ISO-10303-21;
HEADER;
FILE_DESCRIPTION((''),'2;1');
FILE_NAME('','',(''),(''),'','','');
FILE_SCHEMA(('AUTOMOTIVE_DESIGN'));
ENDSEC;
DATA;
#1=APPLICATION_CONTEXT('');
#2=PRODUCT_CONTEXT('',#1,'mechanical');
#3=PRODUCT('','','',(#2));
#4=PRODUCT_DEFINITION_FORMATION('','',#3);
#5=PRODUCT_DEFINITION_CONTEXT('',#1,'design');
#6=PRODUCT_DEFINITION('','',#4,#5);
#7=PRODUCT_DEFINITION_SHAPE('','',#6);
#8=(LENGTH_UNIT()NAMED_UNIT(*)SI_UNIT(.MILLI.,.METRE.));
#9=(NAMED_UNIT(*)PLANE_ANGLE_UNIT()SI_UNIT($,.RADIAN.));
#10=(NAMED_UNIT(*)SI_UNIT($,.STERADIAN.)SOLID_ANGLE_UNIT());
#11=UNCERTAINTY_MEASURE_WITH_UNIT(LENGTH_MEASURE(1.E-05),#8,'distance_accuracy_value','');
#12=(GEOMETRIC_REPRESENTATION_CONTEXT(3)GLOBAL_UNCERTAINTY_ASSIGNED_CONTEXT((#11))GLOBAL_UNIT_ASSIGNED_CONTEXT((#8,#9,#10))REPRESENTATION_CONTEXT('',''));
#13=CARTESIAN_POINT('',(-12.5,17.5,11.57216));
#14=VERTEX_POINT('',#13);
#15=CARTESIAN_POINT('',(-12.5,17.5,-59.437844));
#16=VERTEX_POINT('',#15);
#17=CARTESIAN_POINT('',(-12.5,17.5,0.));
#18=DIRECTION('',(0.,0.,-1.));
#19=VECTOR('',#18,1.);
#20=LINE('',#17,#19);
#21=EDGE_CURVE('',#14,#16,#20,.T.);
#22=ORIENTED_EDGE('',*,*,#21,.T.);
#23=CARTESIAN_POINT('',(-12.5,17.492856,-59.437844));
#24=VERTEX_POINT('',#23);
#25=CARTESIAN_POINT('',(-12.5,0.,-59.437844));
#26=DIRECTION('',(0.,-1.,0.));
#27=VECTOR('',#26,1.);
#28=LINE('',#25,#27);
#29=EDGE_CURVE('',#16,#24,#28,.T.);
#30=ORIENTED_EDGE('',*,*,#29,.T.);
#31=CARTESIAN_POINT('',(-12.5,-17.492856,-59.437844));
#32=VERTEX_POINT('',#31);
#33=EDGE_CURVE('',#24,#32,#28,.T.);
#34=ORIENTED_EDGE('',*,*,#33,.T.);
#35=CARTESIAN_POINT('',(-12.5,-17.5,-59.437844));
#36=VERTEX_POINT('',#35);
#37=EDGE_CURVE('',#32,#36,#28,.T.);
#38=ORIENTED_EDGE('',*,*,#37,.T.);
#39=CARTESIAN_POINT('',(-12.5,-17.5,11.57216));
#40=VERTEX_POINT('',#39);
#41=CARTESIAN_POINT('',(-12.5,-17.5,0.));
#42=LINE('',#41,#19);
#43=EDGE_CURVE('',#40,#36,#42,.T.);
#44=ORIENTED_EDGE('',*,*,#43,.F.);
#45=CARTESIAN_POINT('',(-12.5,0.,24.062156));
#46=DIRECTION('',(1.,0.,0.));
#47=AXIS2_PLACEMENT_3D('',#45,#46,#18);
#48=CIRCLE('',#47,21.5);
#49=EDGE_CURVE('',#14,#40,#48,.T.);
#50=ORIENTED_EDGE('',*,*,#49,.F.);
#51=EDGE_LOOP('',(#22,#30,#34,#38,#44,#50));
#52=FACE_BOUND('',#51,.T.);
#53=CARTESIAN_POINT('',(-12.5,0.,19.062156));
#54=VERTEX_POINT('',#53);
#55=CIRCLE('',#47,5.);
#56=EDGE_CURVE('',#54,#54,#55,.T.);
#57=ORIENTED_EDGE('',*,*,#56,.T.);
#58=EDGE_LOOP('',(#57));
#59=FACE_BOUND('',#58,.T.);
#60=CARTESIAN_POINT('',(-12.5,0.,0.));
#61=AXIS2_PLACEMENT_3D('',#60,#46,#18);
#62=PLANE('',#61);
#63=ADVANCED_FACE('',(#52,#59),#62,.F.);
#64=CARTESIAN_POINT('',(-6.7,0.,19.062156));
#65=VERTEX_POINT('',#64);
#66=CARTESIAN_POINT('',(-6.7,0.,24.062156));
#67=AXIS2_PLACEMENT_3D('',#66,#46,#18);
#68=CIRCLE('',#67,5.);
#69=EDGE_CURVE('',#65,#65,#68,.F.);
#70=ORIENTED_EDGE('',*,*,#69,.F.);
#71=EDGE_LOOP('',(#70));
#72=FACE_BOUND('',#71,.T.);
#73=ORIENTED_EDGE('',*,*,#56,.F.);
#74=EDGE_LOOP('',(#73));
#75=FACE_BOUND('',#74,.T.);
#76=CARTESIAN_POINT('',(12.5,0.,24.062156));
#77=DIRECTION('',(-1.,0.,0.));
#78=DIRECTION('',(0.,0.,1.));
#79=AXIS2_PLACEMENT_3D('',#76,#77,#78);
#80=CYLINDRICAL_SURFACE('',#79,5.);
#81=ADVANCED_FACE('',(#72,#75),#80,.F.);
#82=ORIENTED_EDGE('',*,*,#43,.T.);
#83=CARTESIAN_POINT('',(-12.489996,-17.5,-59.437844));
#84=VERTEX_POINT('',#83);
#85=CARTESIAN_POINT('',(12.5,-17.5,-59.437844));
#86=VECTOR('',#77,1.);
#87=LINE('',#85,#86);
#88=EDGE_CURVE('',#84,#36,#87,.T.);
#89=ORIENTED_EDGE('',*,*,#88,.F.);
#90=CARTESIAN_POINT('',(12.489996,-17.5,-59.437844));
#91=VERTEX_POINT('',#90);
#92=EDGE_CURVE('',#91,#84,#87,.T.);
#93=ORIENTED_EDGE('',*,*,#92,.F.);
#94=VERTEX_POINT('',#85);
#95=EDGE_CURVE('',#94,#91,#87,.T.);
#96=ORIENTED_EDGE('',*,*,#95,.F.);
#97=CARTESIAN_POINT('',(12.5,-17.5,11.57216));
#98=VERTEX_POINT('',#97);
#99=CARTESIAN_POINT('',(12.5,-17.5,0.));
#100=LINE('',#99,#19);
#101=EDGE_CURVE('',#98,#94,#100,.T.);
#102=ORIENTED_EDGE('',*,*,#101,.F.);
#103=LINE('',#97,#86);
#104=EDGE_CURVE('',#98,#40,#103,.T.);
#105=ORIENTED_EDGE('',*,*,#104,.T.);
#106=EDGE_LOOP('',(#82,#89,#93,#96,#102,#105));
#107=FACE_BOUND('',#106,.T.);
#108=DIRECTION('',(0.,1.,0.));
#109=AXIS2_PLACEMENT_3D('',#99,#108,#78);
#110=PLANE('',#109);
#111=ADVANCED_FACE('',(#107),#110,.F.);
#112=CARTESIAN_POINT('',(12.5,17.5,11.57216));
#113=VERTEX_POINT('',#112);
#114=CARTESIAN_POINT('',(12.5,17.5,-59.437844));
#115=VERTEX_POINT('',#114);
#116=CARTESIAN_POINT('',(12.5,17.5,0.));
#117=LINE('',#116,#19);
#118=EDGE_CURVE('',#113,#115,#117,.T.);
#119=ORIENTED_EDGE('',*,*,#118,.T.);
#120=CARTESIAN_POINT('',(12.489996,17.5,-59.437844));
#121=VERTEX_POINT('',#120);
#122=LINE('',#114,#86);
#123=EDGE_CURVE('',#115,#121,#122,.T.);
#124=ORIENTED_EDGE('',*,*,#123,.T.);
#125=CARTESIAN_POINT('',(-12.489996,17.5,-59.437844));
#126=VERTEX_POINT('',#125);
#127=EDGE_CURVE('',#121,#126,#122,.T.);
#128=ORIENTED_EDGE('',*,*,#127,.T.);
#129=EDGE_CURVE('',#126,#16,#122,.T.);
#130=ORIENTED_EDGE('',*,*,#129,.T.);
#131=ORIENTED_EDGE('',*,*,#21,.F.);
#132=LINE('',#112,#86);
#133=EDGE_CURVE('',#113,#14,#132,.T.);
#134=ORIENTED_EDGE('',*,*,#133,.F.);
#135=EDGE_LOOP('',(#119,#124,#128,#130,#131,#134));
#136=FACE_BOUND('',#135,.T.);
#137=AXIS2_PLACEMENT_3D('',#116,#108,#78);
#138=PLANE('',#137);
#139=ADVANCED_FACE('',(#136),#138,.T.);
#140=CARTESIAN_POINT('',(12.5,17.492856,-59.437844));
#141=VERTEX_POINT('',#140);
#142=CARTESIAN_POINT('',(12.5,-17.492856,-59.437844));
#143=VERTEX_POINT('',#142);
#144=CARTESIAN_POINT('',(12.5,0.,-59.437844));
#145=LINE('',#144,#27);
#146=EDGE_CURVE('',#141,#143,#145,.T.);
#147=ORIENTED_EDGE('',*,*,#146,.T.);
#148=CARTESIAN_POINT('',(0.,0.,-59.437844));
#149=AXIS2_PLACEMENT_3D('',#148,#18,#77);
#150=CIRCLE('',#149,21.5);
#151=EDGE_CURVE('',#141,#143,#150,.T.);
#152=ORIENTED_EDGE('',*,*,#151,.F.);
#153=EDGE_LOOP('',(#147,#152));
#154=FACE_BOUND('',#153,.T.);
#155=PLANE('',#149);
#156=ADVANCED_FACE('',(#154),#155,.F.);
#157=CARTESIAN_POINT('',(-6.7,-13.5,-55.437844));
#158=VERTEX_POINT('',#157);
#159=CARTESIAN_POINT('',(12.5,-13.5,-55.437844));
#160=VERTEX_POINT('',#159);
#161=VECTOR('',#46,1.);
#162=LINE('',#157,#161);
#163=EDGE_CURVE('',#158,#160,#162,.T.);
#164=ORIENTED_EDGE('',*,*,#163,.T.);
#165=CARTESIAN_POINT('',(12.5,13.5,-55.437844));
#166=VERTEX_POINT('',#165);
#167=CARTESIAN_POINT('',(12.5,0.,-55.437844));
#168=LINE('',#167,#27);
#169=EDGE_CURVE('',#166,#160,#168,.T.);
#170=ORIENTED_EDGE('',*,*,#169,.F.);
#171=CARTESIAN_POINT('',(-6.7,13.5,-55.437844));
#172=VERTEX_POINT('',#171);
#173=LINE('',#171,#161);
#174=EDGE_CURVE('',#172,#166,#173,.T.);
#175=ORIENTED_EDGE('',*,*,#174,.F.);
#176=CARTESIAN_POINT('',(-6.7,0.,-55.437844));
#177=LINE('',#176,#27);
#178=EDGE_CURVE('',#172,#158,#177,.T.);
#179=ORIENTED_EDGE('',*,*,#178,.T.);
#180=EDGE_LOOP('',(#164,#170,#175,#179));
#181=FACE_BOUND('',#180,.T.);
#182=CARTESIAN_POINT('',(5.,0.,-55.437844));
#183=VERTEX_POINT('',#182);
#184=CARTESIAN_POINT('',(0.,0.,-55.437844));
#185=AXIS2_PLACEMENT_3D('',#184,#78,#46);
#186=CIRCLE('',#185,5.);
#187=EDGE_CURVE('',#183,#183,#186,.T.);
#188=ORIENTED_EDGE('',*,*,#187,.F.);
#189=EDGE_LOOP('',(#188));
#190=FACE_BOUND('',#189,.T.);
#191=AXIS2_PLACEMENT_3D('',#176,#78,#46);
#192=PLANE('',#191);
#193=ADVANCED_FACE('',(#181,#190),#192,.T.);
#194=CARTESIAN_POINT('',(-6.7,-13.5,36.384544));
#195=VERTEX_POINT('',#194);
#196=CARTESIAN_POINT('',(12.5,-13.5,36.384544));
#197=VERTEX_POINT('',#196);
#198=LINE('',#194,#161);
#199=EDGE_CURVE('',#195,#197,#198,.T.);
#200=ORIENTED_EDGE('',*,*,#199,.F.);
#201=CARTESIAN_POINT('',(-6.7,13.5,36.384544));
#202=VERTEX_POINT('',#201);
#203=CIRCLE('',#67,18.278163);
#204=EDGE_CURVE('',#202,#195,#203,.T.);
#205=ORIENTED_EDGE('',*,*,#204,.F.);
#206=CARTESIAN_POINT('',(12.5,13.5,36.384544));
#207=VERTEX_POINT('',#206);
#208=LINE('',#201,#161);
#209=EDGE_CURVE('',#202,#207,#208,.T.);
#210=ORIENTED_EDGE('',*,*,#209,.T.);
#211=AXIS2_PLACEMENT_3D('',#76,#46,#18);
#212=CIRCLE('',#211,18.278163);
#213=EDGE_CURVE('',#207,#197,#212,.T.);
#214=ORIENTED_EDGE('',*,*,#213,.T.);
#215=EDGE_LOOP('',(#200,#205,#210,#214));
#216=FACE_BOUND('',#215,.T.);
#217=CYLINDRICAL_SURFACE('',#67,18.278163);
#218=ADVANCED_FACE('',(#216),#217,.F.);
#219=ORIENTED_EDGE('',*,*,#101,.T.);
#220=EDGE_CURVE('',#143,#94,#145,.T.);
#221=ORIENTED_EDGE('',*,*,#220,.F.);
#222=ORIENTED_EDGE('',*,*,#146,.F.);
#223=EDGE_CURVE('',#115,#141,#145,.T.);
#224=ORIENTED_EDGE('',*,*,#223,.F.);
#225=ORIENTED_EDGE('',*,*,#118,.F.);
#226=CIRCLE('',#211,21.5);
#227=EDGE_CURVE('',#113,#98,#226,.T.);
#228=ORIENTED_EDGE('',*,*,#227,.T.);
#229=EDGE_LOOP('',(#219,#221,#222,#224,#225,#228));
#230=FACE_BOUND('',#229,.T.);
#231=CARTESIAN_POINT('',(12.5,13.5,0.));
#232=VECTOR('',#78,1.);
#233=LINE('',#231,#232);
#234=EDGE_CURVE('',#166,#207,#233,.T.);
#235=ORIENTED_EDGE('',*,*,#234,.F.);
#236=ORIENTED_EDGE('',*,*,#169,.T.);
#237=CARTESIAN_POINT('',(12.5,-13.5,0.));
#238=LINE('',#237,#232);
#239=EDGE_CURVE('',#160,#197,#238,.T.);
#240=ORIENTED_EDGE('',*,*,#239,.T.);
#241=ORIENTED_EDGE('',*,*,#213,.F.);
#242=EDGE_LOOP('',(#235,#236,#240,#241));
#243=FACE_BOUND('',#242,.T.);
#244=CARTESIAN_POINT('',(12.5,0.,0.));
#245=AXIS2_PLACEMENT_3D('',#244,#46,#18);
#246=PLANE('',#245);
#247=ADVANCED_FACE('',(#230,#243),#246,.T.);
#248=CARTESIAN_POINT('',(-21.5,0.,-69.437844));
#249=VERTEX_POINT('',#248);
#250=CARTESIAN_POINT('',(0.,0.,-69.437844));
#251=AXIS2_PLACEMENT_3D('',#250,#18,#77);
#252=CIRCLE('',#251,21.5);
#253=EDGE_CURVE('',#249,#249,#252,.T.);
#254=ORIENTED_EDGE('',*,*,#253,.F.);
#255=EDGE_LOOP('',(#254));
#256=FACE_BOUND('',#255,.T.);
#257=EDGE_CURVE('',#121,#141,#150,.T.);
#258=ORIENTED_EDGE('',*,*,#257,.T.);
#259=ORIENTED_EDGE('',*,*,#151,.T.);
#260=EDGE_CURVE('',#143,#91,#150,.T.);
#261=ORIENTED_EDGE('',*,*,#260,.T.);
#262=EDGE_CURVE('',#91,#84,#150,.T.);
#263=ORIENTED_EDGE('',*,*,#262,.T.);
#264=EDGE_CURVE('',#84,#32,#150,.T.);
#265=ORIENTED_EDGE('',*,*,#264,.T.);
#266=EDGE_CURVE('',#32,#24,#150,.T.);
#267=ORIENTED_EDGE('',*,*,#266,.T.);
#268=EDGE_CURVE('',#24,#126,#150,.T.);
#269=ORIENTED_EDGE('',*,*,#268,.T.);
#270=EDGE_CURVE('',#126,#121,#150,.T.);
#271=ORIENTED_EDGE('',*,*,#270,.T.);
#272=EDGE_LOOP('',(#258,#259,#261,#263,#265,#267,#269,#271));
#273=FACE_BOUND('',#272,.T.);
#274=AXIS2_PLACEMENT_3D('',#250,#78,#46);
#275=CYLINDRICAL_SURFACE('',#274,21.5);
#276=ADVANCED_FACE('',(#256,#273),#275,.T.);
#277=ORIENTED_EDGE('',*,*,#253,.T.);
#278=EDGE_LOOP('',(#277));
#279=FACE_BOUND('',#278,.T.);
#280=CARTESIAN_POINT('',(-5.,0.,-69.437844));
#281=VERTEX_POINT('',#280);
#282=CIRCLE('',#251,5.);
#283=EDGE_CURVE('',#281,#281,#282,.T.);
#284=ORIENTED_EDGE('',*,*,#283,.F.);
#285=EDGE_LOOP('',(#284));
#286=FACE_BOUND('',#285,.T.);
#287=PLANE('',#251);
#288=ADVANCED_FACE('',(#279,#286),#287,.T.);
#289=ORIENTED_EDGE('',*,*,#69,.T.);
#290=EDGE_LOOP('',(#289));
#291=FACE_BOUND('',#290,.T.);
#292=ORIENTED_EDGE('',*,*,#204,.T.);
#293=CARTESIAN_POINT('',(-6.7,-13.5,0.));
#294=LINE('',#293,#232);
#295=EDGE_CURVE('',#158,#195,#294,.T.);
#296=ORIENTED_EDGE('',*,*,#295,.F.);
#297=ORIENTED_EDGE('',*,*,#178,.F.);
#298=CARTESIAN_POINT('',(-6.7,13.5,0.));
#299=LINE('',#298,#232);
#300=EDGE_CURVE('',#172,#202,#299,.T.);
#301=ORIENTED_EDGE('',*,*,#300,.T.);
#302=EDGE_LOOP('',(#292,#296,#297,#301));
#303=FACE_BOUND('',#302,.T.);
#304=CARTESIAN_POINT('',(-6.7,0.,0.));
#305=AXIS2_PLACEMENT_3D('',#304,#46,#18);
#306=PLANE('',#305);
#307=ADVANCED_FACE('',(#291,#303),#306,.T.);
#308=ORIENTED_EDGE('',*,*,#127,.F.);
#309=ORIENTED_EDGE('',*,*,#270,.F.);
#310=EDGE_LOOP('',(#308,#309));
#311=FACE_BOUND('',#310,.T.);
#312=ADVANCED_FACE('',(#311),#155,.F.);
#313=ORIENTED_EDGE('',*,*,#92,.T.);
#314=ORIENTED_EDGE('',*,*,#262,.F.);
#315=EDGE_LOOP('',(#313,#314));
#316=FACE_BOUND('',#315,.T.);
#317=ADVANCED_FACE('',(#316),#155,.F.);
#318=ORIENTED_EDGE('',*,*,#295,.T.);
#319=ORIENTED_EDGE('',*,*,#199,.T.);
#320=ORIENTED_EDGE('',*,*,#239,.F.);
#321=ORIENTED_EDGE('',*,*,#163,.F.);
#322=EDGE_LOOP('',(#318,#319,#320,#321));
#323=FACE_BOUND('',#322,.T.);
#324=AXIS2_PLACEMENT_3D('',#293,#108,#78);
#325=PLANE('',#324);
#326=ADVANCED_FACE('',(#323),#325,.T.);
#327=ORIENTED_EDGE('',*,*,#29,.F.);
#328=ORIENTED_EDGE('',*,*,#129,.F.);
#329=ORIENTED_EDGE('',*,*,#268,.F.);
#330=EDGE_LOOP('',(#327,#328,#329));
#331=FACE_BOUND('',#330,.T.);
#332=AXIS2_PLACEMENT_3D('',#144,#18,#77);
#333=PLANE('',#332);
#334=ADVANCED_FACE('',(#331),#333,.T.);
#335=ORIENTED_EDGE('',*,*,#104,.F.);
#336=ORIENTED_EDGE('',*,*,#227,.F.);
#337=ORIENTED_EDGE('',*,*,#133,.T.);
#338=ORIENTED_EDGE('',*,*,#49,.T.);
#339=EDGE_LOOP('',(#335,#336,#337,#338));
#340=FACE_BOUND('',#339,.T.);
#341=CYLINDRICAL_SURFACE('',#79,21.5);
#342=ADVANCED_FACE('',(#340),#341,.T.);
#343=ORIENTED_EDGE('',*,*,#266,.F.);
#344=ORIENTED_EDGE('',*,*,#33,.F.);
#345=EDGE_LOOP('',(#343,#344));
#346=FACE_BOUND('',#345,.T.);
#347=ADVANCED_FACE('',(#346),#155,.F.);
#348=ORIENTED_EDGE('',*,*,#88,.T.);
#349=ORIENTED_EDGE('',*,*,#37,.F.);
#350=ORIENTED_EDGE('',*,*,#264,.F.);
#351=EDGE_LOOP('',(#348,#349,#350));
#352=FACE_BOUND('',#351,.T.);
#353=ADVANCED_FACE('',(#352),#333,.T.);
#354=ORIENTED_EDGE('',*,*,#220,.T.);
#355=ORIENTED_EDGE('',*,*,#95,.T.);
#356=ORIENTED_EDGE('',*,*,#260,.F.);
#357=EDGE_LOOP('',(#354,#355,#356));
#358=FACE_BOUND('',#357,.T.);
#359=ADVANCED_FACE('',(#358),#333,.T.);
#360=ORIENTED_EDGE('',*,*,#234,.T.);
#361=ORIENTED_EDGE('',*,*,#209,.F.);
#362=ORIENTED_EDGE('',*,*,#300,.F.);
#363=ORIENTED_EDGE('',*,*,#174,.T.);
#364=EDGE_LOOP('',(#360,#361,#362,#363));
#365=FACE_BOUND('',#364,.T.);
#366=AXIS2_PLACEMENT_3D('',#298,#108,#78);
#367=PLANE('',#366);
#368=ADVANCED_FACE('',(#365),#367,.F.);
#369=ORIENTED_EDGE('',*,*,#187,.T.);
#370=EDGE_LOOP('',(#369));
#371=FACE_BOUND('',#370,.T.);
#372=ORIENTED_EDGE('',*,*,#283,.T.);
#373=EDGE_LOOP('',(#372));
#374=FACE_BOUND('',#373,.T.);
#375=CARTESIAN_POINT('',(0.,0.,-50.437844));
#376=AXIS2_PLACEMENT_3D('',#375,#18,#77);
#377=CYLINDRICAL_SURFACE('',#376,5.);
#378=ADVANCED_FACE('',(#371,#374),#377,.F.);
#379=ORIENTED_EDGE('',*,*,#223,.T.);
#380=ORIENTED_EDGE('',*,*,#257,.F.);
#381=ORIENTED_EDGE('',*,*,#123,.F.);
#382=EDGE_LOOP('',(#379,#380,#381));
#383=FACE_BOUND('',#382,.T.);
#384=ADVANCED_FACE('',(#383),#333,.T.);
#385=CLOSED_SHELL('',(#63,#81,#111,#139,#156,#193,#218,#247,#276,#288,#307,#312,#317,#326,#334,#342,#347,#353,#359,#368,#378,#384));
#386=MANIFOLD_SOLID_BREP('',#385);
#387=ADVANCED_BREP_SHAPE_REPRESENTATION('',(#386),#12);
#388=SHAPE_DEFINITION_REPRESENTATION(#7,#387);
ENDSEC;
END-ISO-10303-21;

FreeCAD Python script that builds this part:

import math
import FreeCAD as App
import Part
import Sketcher

V = App.Vector
Q = App.Units.Quantity

doc = App.newDocument("Part")
body = doc.addObject("PartDesign::Body", "Body")

# Sketch on YZ plane
sketch1 = body.newObject("Sketcher::SketchObject", "Sketch")
sketch1.AttachmentSupport = (doc.getObject("YZ_Plane"), [""])
sketch1.MapMode = "FlatFace"
sketch1.addGeometry(Part.LineSegment(V(-18, 12, 0), V(-18, -59, 0)), False)
sketch1.addGeometry(Part.LineSegment(V(-18, -59, 0), V(18, -59, 0)), False)
sketch1.addGeometry(Part.LineSegment(V(18, -59, 0), V(18, 12, 0)), False)
sketch1.addGeometry(Part.ArcOfCircle(Part.Circle(V(0, 24, 0), V(0, 0, 1), 22), math.radians(-36), math.radians(216)), False)
sketch1.addGeometry(Part.Circle(V(0, 24, 0), V(0, 0, 1), 5), False)
sketch1.addConstraint(Sketcher.Constraint("Coincident", 0, 2, 1, 1))
sketch1.addConstraint(Sketcher.Constraint("Coincident", 1, 2, 2, 1))
sketch1.addConstraint(Sketcher.Constraint("Coincident", 2, 2, 3, 1))
sketch1.addConstraint(Sketcher.Constraint("Coincident", 3, 2, 0, 1))
sketch1.addConstraint(Sketcher.Constraint("Vertical", 0))
sketch1.addConstraint(Sketcher.Constraint("Horizontal", 1))
sketch1.addConstraint(Sketcher.Constraint("Vertical", 2))
sketch1.addConstraint(Sketcher.Constraint("Coincident", 4, 3, 3, 3))
sketch1.addConstraint(Sketcher.Constraint("Symmetric", 2, 2, 3, 2, -2))
sketch1.addConstraint(Sketcher.Constraint("Diameter", 4, Q("10 mm")))
sketch1.addConstraint(Sketcher.Constraint("Radius", 3, Q("21.5 mm")))
sketch1.addConstraint(Sketcher.Constraint("DistanceX", 1, 1, 1, 2, Q("35 mm")))
sketch1.addConstraint(Sketcher.Constraint("DistanceY", 0, 2, 3, 3, Q("83.5 mm")))
sketch1.addConstraint(Sketcher.Constraint("DistanceY", -1, 1, 2, 2, Q("11.57216 mm")))
pad1 = body.newObject("PartDesign::Pad", "Pad")
pad1.Profile = sketch1
pad1.Length = 25
pad1.Midplane = True

# Sketch on YZ plane
sketch2 = body.newObject("Sketcher::SketchObject", "Sketch001")
sketch2.AttachmentSupport = (doc.getObject("YZ_Plane"), [""])
sketch2.MapMode = "FlatFace"
sketch2.AttachmentOffset = App.Placement(V(0, 0, 12.5), App.Rotation())
sketch2.addGeometry(Part.LineSegment(V(-14, -55, 0), V(14, -55, 0)), False)
sketch2.addGeometry(Part.LineSegment(V(14, -55, 0), V(14, 36, 0)), False)
sketch2.addGeometry(Part.ArcOfCircle(Part.Circle(V(0, 24, 0), V(0, 0, 1), 18), math.radians(42), math.radians(138)), False)
sketch2.addGeometry(Part.LineSegment(V(-14, 36, 0), V(-14, -55, 0)), False)
sketch2.addConstraint(Sketcher.Constraint("Coincident", 0, 2, 1, 1))
sketch2.addConstraint(Sketcher.Constraint("Coincident", 1, 2, 2, 1))
sketch2.addConstraint(Sketcher.Constraint("Coincident", 2, 2, 3, 1))
sketch2.addConstraint(Sketcher.Constraint("Coincident", 3, 2, 0, 1))
sketch2.addConstraint(Sketcher.Constraint("Horizontal", 0))
sketch2.addConstraint(Sketcher.Constraint("Vertical", 1))
sketch2.addConstraint(Sketcher.Constraint("Vertical", 3))
sketch2.addConstraint(Sketcher.Constraint("Symmetric", 1, 2, 2, 2, -2))
sketch2.addConstraint(Sketcher.Constraint("DistanceX", 0, 1, 0, 2, Q("27 mm")))
sketch2.addConstraint(Sketcher.Constraint("DistanceY", 0, 2, 2, 3, Q("79.5 mm")))
sketch2.addConstraint(Sketcher.Constraint("Radius", 2, Q("18.278163 mm")))
sketch2.addConstraint(Sketcher.Constraint("DistanceY", -1, 1, 2, 3, Q("24.062156 mm")))
pocket1 = body.newObject("PartDesign::Pocket", "Pocket")
pocket1.Profile = sketch2
pocket1.Length = 19.2

# Sketch on XY plane
sketch3 = body.newObject("Sketcher::SketchObject", "Sketch002")
sketch3.AttachmentSupport = (doc.getObject("XY_Plane"), [""])
sketch3.MapMode = "FlatFace"
sketch3.AttachmentOffset = App.Placement(V(0, 0, -59.437844), App.Rotation())
sketch3.addGeometry(Part.Circle(V(0, 0, 0), V(0, 0, 1), 22), False)
sketch3.addConstraint(Sketcher.Constraint("Coincident", 0, 3, -1, 1))
sketch3.addConstraint(Sketcher.Constraint("Diameter", 0, Q("43 mm")))
pad2 = body.newObject("PartDesign::Pad", "Pad001")
pad2.Profile = sketch3
pad2.Length = 10
pad2.Reversed = True

# Sketch on XY plane
sketch4 = body.newObject("Sketcher::SketchObject", "Sketch003")
sketch4.AttachmentSupport = (doc.getObject("XY_Plane"), [""])
sketch4.MapMode = "FlatFace"
sketch4.AttachmentOffset = App.Placement(V(0, 0, -69.437844), App.Rotation())
sketch4.addGeometry(Part.Circle(V(0, 0, 0), V(0, 0, 1), 5), False)
sketch4.addConstraint(Sketcher.Constraint("Coincident", 0, 3, -1, 1))
sketch4.addConstraint(Sketcher.Constraint("Diameter", 0, Q("10 mm")))
pocket2 = body.newObject("PartDesign::Pocket", "Pocket001")
pocket2.Profile = sketch4
pocket2.Length = 19
pocket2.Reversed = True

doc.recompute()
